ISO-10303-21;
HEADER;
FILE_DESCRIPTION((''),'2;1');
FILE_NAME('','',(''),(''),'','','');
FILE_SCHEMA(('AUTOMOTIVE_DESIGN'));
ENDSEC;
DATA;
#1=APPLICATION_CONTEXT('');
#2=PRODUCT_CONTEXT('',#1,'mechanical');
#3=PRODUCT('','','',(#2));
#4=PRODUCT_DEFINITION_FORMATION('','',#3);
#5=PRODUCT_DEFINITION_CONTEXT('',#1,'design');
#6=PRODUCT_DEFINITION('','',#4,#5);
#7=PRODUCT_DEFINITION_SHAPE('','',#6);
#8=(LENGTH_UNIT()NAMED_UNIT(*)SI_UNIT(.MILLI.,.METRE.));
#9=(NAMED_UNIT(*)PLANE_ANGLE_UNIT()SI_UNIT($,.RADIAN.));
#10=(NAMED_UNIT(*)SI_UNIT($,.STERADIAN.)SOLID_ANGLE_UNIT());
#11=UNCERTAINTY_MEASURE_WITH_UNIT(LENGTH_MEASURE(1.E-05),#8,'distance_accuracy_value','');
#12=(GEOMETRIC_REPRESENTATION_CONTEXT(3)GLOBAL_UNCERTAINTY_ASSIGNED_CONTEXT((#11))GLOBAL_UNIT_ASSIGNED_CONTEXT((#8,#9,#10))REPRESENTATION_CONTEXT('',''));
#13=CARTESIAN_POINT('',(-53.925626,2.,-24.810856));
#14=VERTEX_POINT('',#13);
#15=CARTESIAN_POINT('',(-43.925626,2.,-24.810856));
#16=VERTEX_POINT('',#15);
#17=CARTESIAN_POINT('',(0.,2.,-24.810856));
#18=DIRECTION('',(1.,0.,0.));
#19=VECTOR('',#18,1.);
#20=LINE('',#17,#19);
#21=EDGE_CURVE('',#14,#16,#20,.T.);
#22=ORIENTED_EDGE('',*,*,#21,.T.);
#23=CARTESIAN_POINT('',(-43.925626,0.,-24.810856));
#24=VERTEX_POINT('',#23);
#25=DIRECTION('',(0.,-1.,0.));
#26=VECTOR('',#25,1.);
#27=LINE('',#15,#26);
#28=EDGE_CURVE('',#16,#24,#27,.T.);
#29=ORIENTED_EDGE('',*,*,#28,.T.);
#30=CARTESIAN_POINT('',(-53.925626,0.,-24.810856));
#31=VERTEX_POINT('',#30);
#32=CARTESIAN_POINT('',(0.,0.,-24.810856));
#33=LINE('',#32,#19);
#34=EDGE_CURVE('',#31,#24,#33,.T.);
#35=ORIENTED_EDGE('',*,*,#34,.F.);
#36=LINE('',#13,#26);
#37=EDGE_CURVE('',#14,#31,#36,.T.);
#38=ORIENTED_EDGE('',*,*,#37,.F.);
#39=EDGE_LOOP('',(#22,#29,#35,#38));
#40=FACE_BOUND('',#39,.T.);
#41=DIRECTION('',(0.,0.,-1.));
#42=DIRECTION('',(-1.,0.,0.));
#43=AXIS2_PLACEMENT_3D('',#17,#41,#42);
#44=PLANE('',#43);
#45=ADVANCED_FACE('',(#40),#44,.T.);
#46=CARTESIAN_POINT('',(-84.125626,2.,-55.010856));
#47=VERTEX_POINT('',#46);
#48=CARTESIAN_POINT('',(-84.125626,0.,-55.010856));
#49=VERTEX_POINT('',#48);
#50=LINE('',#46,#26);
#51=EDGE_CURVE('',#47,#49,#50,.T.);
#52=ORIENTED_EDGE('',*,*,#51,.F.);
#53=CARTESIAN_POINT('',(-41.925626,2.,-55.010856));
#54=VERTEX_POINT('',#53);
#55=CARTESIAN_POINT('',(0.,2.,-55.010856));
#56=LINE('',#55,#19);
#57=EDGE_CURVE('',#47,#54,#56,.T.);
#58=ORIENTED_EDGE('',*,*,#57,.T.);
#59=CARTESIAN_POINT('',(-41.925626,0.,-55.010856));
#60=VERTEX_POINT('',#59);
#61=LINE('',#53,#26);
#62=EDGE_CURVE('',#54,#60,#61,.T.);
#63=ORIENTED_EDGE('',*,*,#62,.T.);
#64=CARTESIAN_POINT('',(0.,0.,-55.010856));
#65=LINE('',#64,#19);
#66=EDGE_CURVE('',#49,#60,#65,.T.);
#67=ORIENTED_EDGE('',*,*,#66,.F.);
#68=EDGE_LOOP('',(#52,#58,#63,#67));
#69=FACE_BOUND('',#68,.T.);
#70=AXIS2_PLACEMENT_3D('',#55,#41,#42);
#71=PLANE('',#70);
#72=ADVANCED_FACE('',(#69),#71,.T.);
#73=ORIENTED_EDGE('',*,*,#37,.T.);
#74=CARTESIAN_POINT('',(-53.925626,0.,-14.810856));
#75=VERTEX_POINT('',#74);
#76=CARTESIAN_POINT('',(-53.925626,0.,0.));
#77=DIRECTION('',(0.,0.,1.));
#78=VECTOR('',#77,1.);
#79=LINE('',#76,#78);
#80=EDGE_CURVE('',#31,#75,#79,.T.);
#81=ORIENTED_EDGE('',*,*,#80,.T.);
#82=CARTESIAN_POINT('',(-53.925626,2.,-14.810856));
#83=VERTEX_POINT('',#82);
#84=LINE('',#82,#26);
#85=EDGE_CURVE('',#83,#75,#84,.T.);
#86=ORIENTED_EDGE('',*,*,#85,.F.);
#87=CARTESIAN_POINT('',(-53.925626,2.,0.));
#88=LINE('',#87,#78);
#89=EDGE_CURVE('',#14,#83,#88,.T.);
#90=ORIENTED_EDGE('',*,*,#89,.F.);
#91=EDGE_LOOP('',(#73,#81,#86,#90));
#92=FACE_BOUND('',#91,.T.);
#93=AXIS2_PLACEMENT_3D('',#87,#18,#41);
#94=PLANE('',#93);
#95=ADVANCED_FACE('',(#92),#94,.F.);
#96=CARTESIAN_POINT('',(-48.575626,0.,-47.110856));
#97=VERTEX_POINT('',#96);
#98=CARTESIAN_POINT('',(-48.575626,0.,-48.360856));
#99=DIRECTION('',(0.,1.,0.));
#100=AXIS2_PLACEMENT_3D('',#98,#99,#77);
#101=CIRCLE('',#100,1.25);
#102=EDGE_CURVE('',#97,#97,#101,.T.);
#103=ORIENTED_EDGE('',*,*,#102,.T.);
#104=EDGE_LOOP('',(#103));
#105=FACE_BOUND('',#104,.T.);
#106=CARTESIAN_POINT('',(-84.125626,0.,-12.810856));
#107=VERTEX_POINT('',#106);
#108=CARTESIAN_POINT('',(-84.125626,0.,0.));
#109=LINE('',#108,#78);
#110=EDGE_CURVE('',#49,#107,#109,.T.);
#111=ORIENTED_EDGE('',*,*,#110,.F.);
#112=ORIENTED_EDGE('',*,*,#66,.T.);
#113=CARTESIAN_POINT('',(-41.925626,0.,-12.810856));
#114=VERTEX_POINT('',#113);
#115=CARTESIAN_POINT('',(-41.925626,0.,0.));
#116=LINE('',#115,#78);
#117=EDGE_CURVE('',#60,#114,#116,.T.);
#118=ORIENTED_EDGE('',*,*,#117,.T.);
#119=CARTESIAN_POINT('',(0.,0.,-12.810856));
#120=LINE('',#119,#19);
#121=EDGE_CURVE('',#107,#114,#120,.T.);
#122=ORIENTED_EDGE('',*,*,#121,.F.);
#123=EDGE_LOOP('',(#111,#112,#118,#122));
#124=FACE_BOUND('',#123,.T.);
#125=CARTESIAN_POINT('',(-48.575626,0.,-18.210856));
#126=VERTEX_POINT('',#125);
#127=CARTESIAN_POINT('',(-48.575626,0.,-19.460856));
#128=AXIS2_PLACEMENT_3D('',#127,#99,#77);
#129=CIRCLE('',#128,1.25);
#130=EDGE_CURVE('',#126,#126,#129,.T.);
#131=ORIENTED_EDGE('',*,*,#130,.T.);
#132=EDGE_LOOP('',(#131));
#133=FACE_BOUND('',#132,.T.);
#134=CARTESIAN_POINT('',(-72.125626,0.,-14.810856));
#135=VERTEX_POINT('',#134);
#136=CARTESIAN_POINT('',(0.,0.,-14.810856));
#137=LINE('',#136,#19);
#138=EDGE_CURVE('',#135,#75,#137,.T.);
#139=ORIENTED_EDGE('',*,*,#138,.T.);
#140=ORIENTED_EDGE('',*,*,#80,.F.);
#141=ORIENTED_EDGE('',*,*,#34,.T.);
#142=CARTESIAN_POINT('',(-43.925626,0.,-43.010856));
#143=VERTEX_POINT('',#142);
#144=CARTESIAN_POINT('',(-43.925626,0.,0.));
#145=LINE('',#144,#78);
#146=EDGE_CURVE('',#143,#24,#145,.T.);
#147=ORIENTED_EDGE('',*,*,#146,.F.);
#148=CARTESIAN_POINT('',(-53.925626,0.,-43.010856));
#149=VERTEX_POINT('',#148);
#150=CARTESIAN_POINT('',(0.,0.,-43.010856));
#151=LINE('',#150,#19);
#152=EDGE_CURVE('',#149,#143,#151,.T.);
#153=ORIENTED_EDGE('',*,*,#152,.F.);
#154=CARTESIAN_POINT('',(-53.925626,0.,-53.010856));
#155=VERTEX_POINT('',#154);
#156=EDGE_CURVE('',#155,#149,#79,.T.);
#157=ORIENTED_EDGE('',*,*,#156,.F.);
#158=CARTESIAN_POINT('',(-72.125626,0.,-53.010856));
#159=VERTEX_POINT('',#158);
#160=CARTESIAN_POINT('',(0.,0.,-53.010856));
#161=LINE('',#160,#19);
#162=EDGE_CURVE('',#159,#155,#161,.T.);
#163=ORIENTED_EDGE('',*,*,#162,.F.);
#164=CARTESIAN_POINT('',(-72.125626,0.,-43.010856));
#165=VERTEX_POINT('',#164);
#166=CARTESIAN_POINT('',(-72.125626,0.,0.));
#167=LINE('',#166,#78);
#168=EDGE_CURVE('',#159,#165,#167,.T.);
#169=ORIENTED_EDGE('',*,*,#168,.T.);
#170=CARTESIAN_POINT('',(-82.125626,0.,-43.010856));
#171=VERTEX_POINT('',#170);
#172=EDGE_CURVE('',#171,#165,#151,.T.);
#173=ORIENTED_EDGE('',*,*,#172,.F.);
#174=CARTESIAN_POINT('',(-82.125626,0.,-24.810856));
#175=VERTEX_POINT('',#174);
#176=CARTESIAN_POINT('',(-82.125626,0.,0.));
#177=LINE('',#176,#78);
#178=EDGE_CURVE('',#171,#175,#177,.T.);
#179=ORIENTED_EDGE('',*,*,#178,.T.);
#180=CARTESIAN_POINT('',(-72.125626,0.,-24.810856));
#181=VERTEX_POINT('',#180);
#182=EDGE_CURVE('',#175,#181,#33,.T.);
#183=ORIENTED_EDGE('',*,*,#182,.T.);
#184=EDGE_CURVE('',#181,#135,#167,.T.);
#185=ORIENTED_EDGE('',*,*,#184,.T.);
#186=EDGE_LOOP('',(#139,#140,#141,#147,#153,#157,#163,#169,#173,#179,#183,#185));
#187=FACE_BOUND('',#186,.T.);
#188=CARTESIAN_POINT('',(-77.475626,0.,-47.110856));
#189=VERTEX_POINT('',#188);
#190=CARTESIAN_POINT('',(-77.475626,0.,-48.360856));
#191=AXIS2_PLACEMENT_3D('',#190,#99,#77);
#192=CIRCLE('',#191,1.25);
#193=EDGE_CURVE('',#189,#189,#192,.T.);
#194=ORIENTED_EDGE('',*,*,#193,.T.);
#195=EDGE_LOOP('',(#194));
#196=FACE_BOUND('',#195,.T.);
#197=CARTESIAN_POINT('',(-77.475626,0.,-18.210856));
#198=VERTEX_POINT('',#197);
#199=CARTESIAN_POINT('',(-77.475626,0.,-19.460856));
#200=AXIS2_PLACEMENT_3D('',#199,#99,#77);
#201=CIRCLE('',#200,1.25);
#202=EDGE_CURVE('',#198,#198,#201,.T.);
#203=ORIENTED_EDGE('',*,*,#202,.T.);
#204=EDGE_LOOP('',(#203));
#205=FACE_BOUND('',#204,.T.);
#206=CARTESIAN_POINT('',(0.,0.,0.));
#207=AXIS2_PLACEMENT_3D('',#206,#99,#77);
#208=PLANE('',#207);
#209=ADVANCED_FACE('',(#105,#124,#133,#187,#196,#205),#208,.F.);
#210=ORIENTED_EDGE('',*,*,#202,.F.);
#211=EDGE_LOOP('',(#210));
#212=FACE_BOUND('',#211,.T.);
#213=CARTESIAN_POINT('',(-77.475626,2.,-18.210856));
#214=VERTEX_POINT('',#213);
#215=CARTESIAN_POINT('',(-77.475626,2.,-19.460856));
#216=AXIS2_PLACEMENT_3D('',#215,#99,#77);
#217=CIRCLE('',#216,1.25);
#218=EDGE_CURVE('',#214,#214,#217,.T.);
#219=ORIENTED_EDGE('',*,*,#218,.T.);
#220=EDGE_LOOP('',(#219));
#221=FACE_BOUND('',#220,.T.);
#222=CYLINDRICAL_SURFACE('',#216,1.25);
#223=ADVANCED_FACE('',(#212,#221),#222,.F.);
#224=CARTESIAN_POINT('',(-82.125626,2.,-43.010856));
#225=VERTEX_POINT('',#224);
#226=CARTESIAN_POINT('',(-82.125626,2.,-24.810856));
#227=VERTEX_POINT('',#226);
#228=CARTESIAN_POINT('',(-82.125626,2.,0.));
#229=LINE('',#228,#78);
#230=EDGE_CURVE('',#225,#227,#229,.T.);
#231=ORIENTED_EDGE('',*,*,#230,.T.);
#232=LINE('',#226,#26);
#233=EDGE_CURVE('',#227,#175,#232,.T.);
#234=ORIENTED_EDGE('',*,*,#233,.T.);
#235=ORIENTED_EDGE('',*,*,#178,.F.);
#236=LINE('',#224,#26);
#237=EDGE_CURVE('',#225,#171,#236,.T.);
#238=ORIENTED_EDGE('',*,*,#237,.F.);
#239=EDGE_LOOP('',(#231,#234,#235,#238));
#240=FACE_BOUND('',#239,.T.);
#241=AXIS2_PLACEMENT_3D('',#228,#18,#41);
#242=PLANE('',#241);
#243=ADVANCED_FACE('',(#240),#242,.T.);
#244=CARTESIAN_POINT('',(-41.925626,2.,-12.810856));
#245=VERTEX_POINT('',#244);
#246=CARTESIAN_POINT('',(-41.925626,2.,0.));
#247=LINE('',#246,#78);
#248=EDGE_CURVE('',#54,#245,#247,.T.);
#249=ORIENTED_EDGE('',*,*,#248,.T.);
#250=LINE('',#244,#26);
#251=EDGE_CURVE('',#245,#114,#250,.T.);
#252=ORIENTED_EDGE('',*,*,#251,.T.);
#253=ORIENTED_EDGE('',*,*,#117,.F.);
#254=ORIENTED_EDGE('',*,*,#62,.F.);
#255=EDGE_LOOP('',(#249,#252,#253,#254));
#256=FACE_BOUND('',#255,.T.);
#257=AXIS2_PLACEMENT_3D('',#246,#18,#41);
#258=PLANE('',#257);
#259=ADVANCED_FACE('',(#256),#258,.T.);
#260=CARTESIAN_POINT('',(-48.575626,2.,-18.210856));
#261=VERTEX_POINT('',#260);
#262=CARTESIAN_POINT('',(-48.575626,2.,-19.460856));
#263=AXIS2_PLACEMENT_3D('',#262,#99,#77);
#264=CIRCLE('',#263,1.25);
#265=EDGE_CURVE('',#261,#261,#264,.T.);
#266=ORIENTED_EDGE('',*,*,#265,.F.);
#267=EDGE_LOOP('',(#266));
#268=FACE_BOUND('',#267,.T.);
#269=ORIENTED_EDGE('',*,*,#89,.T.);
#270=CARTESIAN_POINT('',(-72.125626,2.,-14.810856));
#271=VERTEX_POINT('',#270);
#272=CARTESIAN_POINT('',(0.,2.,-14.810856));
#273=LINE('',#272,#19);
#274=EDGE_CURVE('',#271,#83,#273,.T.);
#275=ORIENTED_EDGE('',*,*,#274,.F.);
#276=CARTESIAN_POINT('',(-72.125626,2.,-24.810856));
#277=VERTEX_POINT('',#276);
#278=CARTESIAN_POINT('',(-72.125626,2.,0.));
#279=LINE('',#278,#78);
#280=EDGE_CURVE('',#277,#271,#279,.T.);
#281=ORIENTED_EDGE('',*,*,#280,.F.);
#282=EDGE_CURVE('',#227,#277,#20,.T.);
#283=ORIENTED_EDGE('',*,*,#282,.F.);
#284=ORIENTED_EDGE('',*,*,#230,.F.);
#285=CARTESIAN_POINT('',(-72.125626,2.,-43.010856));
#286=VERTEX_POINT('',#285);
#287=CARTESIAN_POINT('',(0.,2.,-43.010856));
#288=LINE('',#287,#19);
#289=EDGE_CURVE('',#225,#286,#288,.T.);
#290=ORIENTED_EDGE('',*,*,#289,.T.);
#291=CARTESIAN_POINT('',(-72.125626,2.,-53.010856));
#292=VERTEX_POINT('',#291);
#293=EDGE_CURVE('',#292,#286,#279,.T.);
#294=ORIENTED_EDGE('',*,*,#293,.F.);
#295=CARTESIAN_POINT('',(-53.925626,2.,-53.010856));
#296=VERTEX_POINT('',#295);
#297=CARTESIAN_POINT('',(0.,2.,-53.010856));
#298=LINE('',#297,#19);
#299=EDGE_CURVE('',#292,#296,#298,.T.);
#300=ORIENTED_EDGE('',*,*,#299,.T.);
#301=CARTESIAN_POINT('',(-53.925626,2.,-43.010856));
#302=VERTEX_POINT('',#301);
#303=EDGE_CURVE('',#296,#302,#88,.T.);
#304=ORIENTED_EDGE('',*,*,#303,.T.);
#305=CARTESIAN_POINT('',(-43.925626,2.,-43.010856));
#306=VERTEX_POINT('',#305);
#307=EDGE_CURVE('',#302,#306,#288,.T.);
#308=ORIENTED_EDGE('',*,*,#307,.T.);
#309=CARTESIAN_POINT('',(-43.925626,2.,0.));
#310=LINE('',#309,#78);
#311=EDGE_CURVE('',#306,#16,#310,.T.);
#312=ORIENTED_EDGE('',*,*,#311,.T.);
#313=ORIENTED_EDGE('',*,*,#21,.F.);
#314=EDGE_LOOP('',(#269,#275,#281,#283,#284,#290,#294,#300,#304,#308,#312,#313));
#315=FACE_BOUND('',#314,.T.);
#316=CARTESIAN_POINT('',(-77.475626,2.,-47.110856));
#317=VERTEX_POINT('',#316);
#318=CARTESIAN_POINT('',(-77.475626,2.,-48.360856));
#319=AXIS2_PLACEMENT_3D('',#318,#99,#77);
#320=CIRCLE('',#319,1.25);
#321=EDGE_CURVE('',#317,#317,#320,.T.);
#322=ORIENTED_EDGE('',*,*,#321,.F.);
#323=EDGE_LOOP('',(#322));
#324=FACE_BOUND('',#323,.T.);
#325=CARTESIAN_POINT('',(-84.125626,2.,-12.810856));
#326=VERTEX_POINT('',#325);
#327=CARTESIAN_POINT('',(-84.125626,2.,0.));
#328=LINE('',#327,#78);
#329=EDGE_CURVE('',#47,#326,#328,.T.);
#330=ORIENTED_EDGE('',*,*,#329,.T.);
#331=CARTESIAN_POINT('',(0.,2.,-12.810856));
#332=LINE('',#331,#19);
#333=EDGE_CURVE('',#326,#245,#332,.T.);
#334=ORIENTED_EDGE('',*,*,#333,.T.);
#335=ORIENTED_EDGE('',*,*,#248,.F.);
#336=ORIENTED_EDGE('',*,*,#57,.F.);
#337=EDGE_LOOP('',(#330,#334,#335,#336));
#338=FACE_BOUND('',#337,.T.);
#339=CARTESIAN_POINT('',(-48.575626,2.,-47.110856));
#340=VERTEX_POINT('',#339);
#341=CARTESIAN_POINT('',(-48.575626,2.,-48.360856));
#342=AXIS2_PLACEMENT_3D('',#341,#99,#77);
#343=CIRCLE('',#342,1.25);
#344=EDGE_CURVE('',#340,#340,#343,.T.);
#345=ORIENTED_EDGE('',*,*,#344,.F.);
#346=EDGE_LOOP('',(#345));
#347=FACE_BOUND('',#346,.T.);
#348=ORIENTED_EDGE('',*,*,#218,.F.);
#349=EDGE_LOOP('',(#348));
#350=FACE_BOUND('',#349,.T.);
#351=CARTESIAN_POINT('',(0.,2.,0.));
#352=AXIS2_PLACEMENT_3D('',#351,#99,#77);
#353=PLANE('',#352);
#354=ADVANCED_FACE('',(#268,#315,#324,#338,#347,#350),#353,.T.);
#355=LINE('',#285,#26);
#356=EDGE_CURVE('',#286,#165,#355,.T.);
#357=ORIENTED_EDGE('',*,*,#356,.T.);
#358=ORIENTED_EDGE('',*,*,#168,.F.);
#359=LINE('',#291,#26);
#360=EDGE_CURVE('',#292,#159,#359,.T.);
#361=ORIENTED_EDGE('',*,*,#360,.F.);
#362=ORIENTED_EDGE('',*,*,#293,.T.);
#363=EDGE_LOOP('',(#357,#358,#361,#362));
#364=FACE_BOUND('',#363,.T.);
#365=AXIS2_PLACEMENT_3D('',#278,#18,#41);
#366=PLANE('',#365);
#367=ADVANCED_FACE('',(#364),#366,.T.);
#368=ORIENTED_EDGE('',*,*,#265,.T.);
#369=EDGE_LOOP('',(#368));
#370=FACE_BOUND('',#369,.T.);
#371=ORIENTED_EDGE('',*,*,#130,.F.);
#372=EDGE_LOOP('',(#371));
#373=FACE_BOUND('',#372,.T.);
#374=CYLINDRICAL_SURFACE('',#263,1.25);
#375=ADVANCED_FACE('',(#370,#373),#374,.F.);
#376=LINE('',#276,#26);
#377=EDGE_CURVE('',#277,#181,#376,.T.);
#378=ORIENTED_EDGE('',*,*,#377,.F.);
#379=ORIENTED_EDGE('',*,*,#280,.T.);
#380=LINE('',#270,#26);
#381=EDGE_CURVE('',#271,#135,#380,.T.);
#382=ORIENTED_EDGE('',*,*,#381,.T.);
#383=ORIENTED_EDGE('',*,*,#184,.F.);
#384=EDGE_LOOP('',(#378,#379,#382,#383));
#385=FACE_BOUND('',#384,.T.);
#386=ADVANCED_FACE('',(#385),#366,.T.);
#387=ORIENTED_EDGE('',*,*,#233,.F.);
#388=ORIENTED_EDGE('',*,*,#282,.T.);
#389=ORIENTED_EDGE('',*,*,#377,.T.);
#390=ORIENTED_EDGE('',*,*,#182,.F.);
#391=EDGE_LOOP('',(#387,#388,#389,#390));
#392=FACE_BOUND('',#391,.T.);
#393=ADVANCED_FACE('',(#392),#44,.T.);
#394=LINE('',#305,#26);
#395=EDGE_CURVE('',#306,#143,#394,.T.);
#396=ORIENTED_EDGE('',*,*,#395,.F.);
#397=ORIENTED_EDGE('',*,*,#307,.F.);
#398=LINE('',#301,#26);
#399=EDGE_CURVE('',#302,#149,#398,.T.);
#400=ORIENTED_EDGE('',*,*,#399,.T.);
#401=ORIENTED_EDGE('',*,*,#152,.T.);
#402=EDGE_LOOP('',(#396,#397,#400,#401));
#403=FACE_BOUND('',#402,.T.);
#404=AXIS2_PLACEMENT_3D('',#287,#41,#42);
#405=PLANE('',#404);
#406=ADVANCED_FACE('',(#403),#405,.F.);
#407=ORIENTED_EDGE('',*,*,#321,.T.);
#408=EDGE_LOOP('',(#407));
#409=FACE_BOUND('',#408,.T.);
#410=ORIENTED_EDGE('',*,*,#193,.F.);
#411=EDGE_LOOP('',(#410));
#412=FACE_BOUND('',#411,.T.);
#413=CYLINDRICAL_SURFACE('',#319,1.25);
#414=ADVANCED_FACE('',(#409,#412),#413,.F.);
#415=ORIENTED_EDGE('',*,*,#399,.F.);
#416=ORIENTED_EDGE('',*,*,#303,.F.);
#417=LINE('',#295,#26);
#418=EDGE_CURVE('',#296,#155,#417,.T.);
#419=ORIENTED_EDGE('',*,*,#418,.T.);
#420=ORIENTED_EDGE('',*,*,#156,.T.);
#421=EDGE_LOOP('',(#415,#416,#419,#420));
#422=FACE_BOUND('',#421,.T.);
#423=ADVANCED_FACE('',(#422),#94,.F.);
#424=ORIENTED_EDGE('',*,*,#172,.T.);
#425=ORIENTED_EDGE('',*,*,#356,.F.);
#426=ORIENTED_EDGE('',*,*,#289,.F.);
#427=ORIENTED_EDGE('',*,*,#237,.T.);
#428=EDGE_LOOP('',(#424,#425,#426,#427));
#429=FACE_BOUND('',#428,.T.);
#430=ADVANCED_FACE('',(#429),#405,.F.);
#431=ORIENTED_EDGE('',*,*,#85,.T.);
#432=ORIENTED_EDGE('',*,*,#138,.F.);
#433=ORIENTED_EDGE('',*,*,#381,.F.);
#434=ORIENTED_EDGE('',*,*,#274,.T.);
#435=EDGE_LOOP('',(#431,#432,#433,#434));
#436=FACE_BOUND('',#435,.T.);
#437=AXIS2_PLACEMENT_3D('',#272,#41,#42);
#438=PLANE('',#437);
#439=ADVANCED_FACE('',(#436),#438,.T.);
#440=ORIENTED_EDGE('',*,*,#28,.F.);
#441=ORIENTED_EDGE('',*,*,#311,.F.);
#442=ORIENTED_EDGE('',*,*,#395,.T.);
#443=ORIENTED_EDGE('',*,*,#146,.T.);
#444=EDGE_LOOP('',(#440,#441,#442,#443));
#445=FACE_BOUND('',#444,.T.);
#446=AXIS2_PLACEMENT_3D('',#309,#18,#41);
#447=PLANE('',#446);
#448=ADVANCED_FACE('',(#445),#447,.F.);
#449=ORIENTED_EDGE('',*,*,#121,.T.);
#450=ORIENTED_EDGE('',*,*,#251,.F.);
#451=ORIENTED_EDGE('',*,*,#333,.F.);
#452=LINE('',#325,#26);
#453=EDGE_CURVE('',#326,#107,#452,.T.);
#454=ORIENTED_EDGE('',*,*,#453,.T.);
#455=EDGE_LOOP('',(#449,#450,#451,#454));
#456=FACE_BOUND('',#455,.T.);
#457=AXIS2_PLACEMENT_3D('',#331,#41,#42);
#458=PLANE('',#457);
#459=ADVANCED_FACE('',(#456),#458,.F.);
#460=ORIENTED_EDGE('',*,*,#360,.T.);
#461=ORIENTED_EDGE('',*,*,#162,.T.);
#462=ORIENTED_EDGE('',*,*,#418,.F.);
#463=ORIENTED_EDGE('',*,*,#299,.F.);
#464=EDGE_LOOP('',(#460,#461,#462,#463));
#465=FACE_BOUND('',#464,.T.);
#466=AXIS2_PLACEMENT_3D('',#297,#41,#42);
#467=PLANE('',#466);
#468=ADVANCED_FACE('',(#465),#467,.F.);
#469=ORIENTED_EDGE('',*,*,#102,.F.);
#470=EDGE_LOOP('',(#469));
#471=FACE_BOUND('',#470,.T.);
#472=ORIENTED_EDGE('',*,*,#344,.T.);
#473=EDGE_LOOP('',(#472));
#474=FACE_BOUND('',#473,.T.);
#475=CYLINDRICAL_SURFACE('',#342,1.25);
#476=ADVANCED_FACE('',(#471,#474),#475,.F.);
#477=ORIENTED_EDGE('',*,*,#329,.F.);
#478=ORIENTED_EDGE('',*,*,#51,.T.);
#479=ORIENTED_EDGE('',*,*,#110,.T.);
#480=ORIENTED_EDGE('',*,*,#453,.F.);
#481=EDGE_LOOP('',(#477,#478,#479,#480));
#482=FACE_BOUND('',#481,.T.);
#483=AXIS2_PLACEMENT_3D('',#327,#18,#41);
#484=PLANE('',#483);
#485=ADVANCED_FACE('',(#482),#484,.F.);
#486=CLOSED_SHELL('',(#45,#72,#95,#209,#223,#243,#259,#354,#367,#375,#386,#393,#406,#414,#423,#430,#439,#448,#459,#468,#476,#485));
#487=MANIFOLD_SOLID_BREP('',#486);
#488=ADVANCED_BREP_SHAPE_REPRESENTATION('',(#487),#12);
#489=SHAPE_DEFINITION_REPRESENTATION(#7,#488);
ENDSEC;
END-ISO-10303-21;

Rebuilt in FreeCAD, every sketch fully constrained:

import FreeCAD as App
import Part
import Sketcher
from FreeCAD import Vector


def add_polygon(sketch, points):
    """Adds a closed chain of lines whose ends are joined by coincident constraints."""
    first, n = sketch.GeometryCount, len(points)
    for a, b in zip(points, points[1:] + points[:1]):
        sketch.addGeometry(Part.LineSegment(App.Vector(*a, 0), App.Vector(*b, 0)), False)
    for i in range(n):
        sketch.addConstraint(Sketcher.Constraint("Coincident", first + i, 2, first + (i + 1) % n, 1))

doc = App.newDocument("Part")
body = doc.addObject("PartDesign::Body", "Body")

sketch1 = body.newObject("Sketcher::SketchObject", "Sketch")
sketch1.AttachmentSupport = (doc.getObject("XZ_Plane"), [""])
sketch1.MapMode = "FlatFace"
add_polygon(sketch1, [(-84.125626, -55.010856), (-84.125626, -12.810856), (-41.925626, -12.810856), (-41.925626, -55.010856)])
add_polygon(sketch1, [(-53.925626, -14.810856), (-72.125626, -14.810856), (-72.125626, -24.810856), (-82.125626, -24.810856), (-82.125626, -43.010856), (-72.125626, -43.010856), (-72.125626, -53.010856), (-53.925626, -53.010856), (-53.925626, -43.010856), (-43.925626, -43.010856), (-43.925626, -24.810856), (-53.925626, -24.810856)])
sketch1.addConstraint([
    Sketcher.Constraint("Vertical", 0),
    Sketcher.Constraint("Horizontal", 1),
    Sketcher.Constraint("Vertical", 2),
    Sketcher.Constraint("Horizontal", 3),
    Sketcher.Constraint("Horizontal", 4),
    Sketcher.Constraint("Vertical", 5),
    Sketcher.Constraint("Horizontal", 6),
    Sketcher.Constraint("Vertical", 7),
    Sketcher.Constraint("Horizontal", 8),
    Sketcher.Constraint("Vertical", 9),
    Sketcher.Constraint("Horizontal", 10),
    Sketcher.Constraint("Vertical", 11),
    Sketcher.Constraint("Horizontal", 12),
    Sketcher.Constraint("Vertical", 13),
    Sketcher.Constraint("Horizontal", 14),
    Sketcher.Constraint("Vertical", 15),
    Sketcher.Constraint("Horizontal", 8, 2, 11, 2),
    Sketcher.Constraint("Horizontal", 6, 2, 13, 2),
    Sketcher.Constraint("Vertical", 5, 2, 8, 2),
    Sketcher.Constraint("Vertical", 11, 2, 14, 2),
    Sketcher.Constraint("Equal", 8, 12),
    Sketcher.Constraint("Equal", 3, 0),
    Sketcher.Constraint("Equal", 14, 5),
    Sketcher.Constraint("Equal", 10, 7),
    Sketcher.Constraint("Equal", 5, 9),
    Sketcher.Constraint("DistanceX", 6, 2, 6, 1, 10.0),
    Sketcher.Constraint("DistanceX", 1, 1, 1, 2, 42.2),
    Sketcher.Constraint("DistanceX", 4, 2, 4, 1, 18.2),
    Sketcher.Constraint("DistanceX", 0, 2, 4, 2, 12.0),
    Sketcher.Constraint("DistanceY", 4, 2, 0, 2, 2.0),
    Sketcher.Constraint("DistanceX", 0, 2, -1, 1, 84.125626),
    Sketcher.Constraint("DistanceY", 0, 2, -1, 1, 12.810856),
])
pad1 = body.newObject("PartDesign::Pad", "Pad")
pad1.Profile = sketch1
pad1.Length = 2
pad1.Reversed = True

sketch2 = body.newObject("Sketcher::SketchObject", "Sketch001")
sketch2.AttachmentSupport = (doc.getObject("XZ_Plane"), [""])
sketch2.MapMode = "FlatFace"
sketch2.AttachmentOffset = App.Placement(Vector(0, 0, -2), App.Rotation())
sketch2.addGeometry([
    Part.Circle(Vector(-77.475626, -48.360856, 0), Vector(0, 0, 1), 1.25),
    Part.Circle(Vector(-48.575626, -48.360856, 0), Vector(0, 0, 1), 1.25),
    Part.Circle(Vector(-48.575626, -19.460856, 0), Vector(0, 0, 1), 1.25),
    Part.Circle(Vector(-77.475626, -19.460856, 0), Vector(0, 0, 1), 1.25),
], False)
sketch2.addConstraint([
    Sketcher.Constraint("Equal", 0, 1),
    Sketcher.Constraint("Equal", 1, 2),
    Sketcher.Constraint("Equal", 2, 3),
    Sketcher.Constraint("Horizontal", 0, 3, 1, 3),
    Sketcher.Constraint("Horizontal", 2, 3, 3, 3),
    Sketcher.Constraint("Vertical", 1, 3, 2, 3),
    Sketcher.Constraint("Vertical", 0, 3, 3, 3),
    Sketcher.Constraint("Diameter", 0, 2.5),
    Sketcher.Constraint("DistanceX", 0, 3, 1, 3, 28.9),
    Sketcher.Constraint("DistanceY", 1, 3, 2, 3, 28.9),
    Sketcher.Constraint("DistanceX", 0, 3, -1, 1, 77.475626),
    Sketcher.Constraint("DistanceY", 0, 3, -1, 1, 48.360856),
])
doc.recompute()
hole = body.newObject("PartDesign::Hole", "Hole")
hole.Profile = sketch2
hole.ThreadType = "None"
hole.Diameter = 2.5
hole.DepthType = "ThroughAll"
hole.Reversed = True

doc.recompute()
